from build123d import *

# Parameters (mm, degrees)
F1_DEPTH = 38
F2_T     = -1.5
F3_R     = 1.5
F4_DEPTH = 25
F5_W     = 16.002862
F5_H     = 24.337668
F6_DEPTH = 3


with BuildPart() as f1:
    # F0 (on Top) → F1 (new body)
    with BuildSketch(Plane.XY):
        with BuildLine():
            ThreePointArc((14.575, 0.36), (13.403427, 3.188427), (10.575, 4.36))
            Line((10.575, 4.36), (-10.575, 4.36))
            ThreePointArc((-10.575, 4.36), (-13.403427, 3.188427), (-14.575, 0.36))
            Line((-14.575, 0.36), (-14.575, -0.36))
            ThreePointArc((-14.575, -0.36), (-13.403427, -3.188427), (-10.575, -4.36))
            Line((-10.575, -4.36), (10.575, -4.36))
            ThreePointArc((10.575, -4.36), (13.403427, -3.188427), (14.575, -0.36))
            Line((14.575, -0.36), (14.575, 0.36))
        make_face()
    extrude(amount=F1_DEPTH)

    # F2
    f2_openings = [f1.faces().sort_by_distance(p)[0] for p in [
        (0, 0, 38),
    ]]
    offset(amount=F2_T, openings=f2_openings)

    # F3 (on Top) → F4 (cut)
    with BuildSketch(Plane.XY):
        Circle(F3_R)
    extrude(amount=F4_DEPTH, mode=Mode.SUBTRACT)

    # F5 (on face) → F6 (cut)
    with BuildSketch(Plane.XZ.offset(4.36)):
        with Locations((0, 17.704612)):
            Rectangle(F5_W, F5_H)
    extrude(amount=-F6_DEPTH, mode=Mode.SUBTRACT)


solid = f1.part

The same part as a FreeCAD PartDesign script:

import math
import FreeCAD as App
import Part
import Sketcher
from FreeCAD import Vector
Q = App.Units.Quantity


def faces_at(feature, points):
    """Names of the faces that lie closest to the given points."""
    faces = feature.Shape.Faces
    near = lambda p: min(range(len(faces)), key=lambda i: faces[i].distToShape(Part.Vertex(*p))[0])
    return sorted({f"Face{near(p) + 1}" for p in points})


def add_polygon(sketch, points):
    """Adds a closed chain of lines whose ends are joined by coincident constraints."""
    first, n = sketch.GeometryCount, len(points)
    for a, b in zip(points, points[1:] + points[:1]):
        sketch.addGeometry(Part.LineSegment(App.Vector(*a, 0), App.Vector(*b, 0)), False)
    for i in range(n):
        sketch.addConstraint(Sketcher.Constraint("Coincident", first + i, 2, first + (i + 1) % n, 1))

doc = App.newDocument("Part")
body = doc.addObject("PartDesign::Body", "Body")

# Sketch on XY plane
sketch1 = body.newObject("Sketcher::SketchObject", "Sketch")
sketch1.AttachmentSupport = (doc.getObject("XY_Plane"), [""])
sketch1.MapMode = "FlatFace"
sketch1.addGeometry([
    Part.ArcOfCircle(Part.Circle(Vector(10.6, 0.4, 0), Vector(0, 0, 1), 4), math.radians(0), math.radians(90)),  # 0
    Part.LineSegment(Vector(10.6, 4.4, 0), Vector(-10.6, 4.4, 0)),  # 1
    Part.ArcOfCircle(Part.Circle(Vector(-10.6, 0.4, 0), Vector(0, 0, 1), 4), math.radians(90), math.radians(180)),  # 2
    Part.LineSegment(Vector(-14.6, 0.4, 0), Vector(-14.6, -0.4, 0)),  # 3
    Part.ArcOfCircle(Part.Circle(Vector(-10.6, -0.4, 0), Vector(0, 0, 1), 4), math.radians(-180), math.radians(-90)),  # 4
    Part.LineSegment(Vector(-10.6, -4.4, 0), Vector(10.6, -4.4, 0)),  # 5
    Part.ArcOfCircle(Part.Circle(Vector(10.6, -0.4, 0), Vector(0, 0, 1), 4), math.radians(-90), math.radians(0)),  # 6
    Part.LineSegment(Vector(14.6, -0.4, 0), Vector(14.6, 0.4, 0)),  # 7
], False)
sketch1.addConstraint([
    Sketcher.Constraint("Tangent", 0, 2, 1, 1),
    Sketcher.Constraint("Tangent", 1, 2, 2, 1),
    Sketcher.Constraint("Tangent", 2, 2, 3, 1),
    Sketcher.Constraint("Tangent", 3, 2, 4, 1),
    Sketcher.Constraint("Tangent", 4, 2, 5, 1),
    Sketcher.Constraint("Tangent", 5, 2, 6, 1),
    Sketcher.Constraint("Tangent", 6, 2, 7, 1),
    Sketcher.Constraint("Tangent", 7, 2, 0, 1),
    Sketcher.Constraint("Horizontal", 1),
    Sketcher.Constraint("Vertical", 3),
    Sketcher.Constraint("Horizontal", 5),
    Sketcher.Constraint("Vertical", 7),
    Sketcher.Constraint("Equal", 0, 2),
    Sketcher.Constraint("Equal", 2, 4),
    Sketcher.Constraint("Equal", 4, 6),
    Sketcher.Constraint("Symmetric", 0, 3, 4, 3, -1, 1),
    Sketcher.Constraint("Radius", 0, Q("4 mm")),
    Sketcher.Constraint("DistanceX", 1, 2, 1, 1, Q("21.15 mm")),
    Sketcher.Constraint("DistanceY", 3, 2, 3, 1, Q("0.72 mm")),
])
pad1 = body.newObject("PartDesign::Pad", "Pad")
pad1.Profile = sketch1
pad1.Length = 38
doc.recompute()

thickness = body.newObject("PartDesign::Thickness", "Thickness")
thickness.Base = (pad1, faces_at(pad1, [(0, 0, 38)]))
thickness.Value = 1.5
thickness.Reversed = True
thickness.Join = "Arc"

# Sketch on XY plane
sketch2 = body.newObject("Sketcher::SketchObject", "Sketch001")
sketch2.AttachmentSupport = (doc.getObject("XY_Plane"), [""])
sketch2.MapMode = "FlatFace"
sketch2.addGeometry(Part.Circle(Vector(0, 0, 0), Vector(0, 0, 1), 1.5), False)
sketch2.addConstraint([
    Sketcher.Constraint("Coincident", 0, 3, -1, 1),
    Sketcher.Constraint("Diameter", 0, Q("3 mm")),
])
pocket1 = body.newObject("PartDesign::Pocket", "Pocket")
pocket1.Profile = sketch2
pocket1.Length = 25
pocket1.Reversed = True

# Sketch on XZ plane
sketch3 = body.newObject("Sketcher::SketchObject", "Sketch002")
sketch3.AttachmentSupport = (doc.getObject("XZ_Plane"), [""])
sketch3.MapMode = "FlatFace"
sketch3.AttachmentOffset = App.Placement(Vector(0, 0, 4.36), App.Rotation())
add_polygon(sketch3, [(-8, 30), (-8, 6), (8, 6), (8, 30)])  # lines 0-3
sketch3.addConstraint([
    Sketcher.Constraint("Vertical", 0),
    Sketcher.Constraint("Horizontal", 1),
    Sketcher.Constraint("Vertical", 2),
    Sketcher.Constraint("Horizontal", 3),
    Sketcher.Constraint("DistanceY", 0, 2, 0, 1, Q("24.337668 mm")),
    Sketcher.Constraint("DistanceX", 1, 1, 1, 2, Q("16.002862 mm")),
    Sketcher.Constraint("DistanceX", 0, 2, -1, 1, Q("8.001431 mm")),
    Sketcher.Constraint("DistanceY", -1, 1, 0, 2, Q("5.535778 mm")),
])
pocket2 = body.newObject("PartDesign::Pocket", "Pocket001")
pocket2.Profile = sketch3
pocket2.Length = 3

doc.recompute()
